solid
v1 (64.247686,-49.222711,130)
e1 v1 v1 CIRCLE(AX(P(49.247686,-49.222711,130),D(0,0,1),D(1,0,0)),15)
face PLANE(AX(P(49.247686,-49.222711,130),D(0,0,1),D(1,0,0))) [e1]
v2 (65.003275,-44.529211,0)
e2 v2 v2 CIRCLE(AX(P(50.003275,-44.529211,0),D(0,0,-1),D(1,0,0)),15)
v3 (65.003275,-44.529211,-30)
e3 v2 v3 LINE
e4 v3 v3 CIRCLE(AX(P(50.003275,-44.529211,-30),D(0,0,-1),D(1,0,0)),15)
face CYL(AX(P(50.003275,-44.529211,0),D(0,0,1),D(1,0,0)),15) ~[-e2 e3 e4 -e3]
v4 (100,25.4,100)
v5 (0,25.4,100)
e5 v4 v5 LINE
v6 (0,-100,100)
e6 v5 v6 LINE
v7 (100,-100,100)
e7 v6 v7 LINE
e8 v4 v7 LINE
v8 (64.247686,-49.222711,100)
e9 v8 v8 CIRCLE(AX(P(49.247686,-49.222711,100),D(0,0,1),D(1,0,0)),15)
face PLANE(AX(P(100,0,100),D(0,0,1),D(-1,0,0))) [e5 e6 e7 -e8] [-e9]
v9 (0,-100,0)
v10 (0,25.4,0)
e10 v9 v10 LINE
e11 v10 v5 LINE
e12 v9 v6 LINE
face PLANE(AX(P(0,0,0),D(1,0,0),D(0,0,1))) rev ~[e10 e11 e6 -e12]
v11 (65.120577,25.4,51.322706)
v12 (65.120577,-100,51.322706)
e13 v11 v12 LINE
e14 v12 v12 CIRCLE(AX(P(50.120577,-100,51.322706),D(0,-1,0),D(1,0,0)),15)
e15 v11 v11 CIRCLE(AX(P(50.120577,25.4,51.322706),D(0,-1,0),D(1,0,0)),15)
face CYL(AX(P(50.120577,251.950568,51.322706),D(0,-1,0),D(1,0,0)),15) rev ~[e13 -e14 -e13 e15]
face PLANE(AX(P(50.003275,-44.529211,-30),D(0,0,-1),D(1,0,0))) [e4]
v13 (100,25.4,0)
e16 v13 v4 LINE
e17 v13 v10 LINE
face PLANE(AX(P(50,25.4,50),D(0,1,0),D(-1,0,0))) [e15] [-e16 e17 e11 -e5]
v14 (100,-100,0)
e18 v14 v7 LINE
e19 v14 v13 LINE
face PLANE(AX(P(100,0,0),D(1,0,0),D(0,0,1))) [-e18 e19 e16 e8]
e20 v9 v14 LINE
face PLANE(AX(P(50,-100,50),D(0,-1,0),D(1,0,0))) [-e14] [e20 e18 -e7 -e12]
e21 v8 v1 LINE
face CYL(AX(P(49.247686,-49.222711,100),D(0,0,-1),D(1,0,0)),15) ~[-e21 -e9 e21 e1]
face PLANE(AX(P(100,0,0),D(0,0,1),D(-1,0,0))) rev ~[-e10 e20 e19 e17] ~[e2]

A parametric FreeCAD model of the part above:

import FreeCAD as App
import Part
import Sketcher
from FreeCAD import Vector
Q = App.Units.Quantity


def add_polygon(sketch, points):
    """Adds a closed chain of lines whose ends are joined by coincident constraints."""
    first, n = sketch.GeometryCount, len(points)
    for a, b in zip(points, points[1:] + points[:1]):
        sketch.addGeometry(Part.LineSegment(App.Vector(*a, 0), App.Vector(*b, 0)), False)
    for i in range(n):
        sketch.addConstraint(Sketcher.Constraint("Coincident", first + i, 2, first + (i + 1) % n, 1))

doc = App.newDocument("Part")
body = doc.addObject("PartDesign::Body", "Body")

# Sketch on XZ plane
sketch1 = body.newObject("Sketcher::SketchObject", "Sketch")
sketch1.AttachmentSupport = (doc.getObject("XZ_Plane"), [""])
sketch1.MapMode = "FlatFace"
add_polygon(sketch1, [(0, 100), (0, 0), (100, 0), (100, 100)])  # lines 0-3
sketch1.addConstraint([
    Sketcher.Constraint("Vertical", 0),
    Sketcher.Constraint("Horizontal", 1),
    Sketcher.Constraint("Vertical", 2),
    Sketcher.Constraint("Horizontal", 3),
    Sketcher.Constraint("Coincident", 0, 2, -1, 1),
    Sketcher.Constraint("Equal", 3, 0),
    Sketcher.Constraint("DistanceX", 1, 1, 1, 2, Q("100 mm")),
])
pad1 = body.newObject("PartDesign::Pad", "Pad")
pad1.Profile = sketch1
pad1.Length = 100

# Sketch on XY plane
sketch2 = body.newObject("Sketcher::SketchObject", "Sketch001")
sketch2.AttachmentSupport = (doc.getObject("XY_Plane"), [""])
sketch2.MapMode = "FlatFace"
sketch2.addGeometry(Part.Circle(Vector(50, -45, 0), Vector(0, 0, 1), 15), False)
sketch2.addConstraint([
    Sketcher.Constraint("Diameter", 0, Q("30 mm")),
    Sketcher.Constraint("DistanceY", 0, 3, -1, 1, Q("44.529211 mm")),
    Sketcher.Constraint("DistanceX", -1, 1, 0, 3, Q("50.003275 mm")),
])
pad2 = body.newObject("PartDesign::Pad", "Pad001")
pad2.Profile = sketch2
pad2.Length = 30
pad2.Reversed = True

# Sketch on XY plane
sketch3 = body.newObject("Sketcher::SketchObject", "Sketch002")
sketch3.AttachmentSupport = (doc.getObject("XY_Plane"), [""])
sketch3.MapMode = "FlatFace"
sketch3.AttachmentOffset = App.Placement(Vector(0, 0, 100), App.Rotation())
sketch3.addGeometry(Part.Circle(Vector(49, -49, 0), Vector(0, 0, 1), 15), False)
sketch3.addConstraint([
    Sketcher.Constraint("Diameter", 0, Q("30 mm")),
    Sketcher.Constraint("DistanceY", 0, 3, -1, 1, Q("49.222711 mm")),
    Sketcher.Constraint("DistanceX", -1, 1, 0, 3, Q("49.247686 mm")),
])
pad3 = body.newObject("PartDesign::Pad", "Pad002")
pad3.Profile = sketch3
pad3.Length = 30

# Sketch on XZ plane
sketch4 = body.newObject("Sketcher::SketchObject", "Sketch003")
sketch4.AttachmentSupport = (doc.getObject("XZ_Plane"), [""])
sketch4.MapMode = "FlatFace"
add_polygon(sketch4, [(100, 100), (100, 0), (0, 0), (0, 100)])  # lines 0-3
sketch4.addConstraint([
    Sketcher.Constraint("Vertical", 0),
    Sketcher.Constraint("Horizontal", 1),
    Sketcher.Constraint("Vertical", 2),
    Sketcher.Constraint("Horizontal", 3),
    Sketcher.Constraint("Coincident", 1, 2, -1, 1),
    Sketcher.Constraint("Equal", 3, 0),
    Sketcher.Constraint("DistanceX", 1, 2, 1, 1, Q("100 mm")),
])
pad4 = body.newObject("PartDesign::Pad", "Pad003")
pad4.Profile = sketch4
pad4.Length = 25.4
pad4.Reversed = True

# Sketch on XZ plane
sketch5 = body.newObject("Sketcher::SketchObject", "Sketch004")
sketch5.AttachmentSupport = (doc.getObject("XZ_Plane"), [""])
sketch5.MapMode = "FlatFace"
sketch5.AttachmentOffset = App.Placement(Vector(0, 0, -25.4), App.Rotation())
sketch5.addGeometry(Part.Circle(Vector(50, 51, 0), Vector(0, 0, 1), 15), False)
sketch5.addConstraint([
    Sketcher.Constraint("Diameter", 0, Q("30 mm")),
    Sketcher.Constraint("DistanceX", -1, 1, 0, 3, Q("50.120577 mm")),
    Sketcher.Constraint("DistanceY", -1, 1, 0, 3, Q("51.322706 mm")),
])
doc.recompute()
hole = body.newObject("PartDesign::Hole", "Hole")
hole.Profile = sketch5
hole.ThreadType = "None"
hole.Diameter = 30
hole.DepthType = "ThroughAll"
hole.Reversed = True

doc.recompute()
